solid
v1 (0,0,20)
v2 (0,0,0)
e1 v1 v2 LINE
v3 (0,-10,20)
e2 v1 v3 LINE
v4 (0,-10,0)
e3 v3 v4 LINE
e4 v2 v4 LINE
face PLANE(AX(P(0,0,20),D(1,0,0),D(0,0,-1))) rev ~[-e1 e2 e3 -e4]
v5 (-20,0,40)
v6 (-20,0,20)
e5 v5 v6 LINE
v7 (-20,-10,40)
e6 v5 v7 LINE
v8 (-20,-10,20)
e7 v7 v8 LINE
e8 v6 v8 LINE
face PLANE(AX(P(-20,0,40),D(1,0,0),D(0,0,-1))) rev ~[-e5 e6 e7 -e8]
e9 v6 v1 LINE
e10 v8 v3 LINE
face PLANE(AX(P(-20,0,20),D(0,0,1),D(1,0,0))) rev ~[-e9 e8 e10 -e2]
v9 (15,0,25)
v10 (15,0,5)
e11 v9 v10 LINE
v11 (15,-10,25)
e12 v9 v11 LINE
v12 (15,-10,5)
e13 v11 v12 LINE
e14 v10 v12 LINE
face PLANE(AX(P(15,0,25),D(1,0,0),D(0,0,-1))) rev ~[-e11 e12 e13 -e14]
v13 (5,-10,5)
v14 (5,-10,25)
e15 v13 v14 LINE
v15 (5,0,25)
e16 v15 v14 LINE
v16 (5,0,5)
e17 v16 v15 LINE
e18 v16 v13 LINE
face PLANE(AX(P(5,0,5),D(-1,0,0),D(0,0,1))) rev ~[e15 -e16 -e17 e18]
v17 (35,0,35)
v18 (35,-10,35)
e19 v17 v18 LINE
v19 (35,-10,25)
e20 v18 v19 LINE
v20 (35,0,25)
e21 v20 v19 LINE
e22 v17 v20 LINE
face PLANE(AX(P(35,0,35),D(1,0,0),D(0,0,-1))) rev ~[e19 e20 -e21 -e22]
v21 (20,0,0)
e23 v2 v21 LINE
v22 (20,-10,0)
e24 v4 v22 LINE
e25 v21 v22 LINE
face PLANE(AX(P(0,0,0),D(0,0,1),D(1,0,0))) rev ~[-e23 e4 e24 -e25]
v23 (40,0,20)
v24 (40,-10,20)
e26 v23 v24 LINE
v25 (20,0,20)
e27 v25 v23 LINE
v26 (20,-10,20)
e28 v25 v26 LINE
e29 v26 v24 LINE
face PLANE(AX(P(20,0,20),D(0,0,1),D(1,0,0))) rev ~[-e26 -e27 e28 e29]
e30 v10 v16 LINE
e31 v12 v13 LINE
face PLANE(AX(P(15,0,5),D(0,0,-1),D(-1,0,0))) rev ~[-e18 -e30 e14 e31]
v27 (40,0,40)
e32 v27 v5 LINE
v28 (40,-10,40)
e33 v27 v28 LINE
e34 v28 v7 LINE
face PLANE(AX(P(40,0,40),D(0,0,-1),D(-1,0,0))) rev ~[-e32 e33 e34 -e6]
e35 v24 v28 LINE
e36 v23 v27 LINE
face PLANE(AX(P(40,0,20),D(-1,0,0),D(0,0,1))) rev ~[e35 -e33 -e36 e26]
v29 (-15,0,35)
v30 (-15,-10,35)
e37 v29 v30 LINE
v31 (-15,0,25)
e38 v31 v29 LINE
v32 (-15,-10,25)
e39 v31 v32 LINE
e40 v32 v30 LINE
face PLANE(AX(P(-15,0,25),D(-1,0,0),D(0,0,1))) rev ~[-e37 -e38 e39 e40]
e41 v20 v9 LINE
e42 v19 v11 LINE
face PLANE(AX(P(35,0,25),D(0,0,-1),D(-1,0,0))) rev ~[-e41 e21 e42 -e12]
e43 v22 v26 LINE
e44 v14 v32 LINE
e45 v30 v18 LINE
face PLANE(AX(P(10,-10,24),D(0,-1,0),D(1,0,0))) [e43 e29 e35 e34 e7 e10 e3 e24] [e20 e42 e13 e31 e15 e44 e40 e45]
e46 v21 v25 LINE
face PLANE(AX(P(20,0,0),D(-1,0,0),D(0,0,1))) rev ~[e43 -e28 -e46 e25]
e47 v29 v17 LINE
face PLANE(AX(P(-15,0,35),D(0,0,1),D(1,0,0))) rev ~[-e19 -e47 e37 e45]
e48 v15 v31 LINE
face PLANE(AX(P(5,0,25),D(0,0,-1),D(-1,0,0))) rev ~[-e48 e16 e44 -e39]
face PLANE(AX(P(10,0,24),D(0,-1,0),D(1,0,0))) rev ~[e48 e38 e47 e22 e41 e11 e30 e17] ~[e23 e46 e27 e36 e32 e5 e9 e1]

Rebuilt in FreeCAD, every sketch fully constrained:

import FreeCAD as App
import Part
import Sketcher

V = App.Vector
Q = App.Units.Quantity

doc = App.newDocument("Part")
params = doc.addObject("Spreadsheet::Sheet", "Params")
for row, (alias, value) in enumerate([
    ("sketch1_width", "20 mm"),
    ("sketch1_width2", "50 mm"),
    ("pad1_length", "10 mm"),
], start=1):
    params.set(f"A{row}", alias)
    params.set(f"B{row}", "=" + value)
    params.setAlias(f"B{row}", alias)

body = doc.addObject("PartDesign::Body", "Body")

# Sketch on XZ plane
sketch1 = body.newObject("Sketcher::SketchObject", "Sketch")
sketch1.AttachmentSupport = (doc.getObject("XZ_Plane"), [""])
sketch1.MapMode = "FlatFace"
sketch1.addGeometry(Part.LineSegment(V(0, 20, 0), V(0, 0, 0)), False)
sketch1.addGeometry(Part.LineSegment(V(0, 0, 0), V(20, 0, 0)), False)
sketch1.addGeometry(Part.LineSegment(V(20, 0, 0), V(20, 20, 0)), False)
sketch1.addGeometry(Part.LineSegment(V(20, 20, 0), V(40, 20, 0)), False)
sketch1.addGeometry(Part.LineSegment(V(40, 20, 0), V(40, 40, 0)), False)
sketch1.addGeometry(Part.LineSegment(V(40, 40, 0), V(-20, 40, 0)), False)
sketch1.addGeometry(Part.LineSegment(V(-20, 40, 0), V(-20, 20, 0)), False)
sketch1.addGeometry(Part.LineSegment(V(-20, 20, 0), V(0, 20, 0)), False)
sketch1.addGeometry(Part.LineSegment(V(5, 5, 0), V(5, 25, 0)), False)
sketch1.addGeometry(Part.LineSegment(V(5, 25, 0), V(-15, 25, 0)), False)
sketch1.addGeometry(Part.LineSegment(V(-15, 25, 0), V(-15, 35, 0)), False)
sketch1.addGeometry(Part.LineSegment(V(-15, 35, 0), V(35, 35, 0)), False)
sketch1.addGeometry(Part.LineSegment(V(35, 35, 0), V(35, 25, 0)), False)
sketch1.addGeometry(Part.LineSegment(V(35, 25, 0), V(15, 25, 0)), False)
sketch1.addGeometry(Part.LineSegment(V(15, 25, 0), V(15, 5, 0)), False)
sketch1.addGeometry(Part.LineSegment(V(15, 5, 0), V(5, 5, 0)), False)
sketch1.addConstraint(Sketcher.Constraint("Coincident", 0, 2, 1, 1))
sketch1.addConstraint(Sketcher.Constraint("Coincident", 1, 2, 2, 1))
sketch1.addConstraint(Sketcher.Constraint("Coincident", 2, 2, 3, 1))
sketch1.addConstraint(Sketcher.Constraint("Coincident", 3, 2, 4, 1))
sketch1.addConstraint(Sketcher.Constraint("Coincident", 4, 2, 5, 1))
sketch1.addConstraint(Sketcher.Constraint("Coincident", 5, 2, 6, 1))
sketch1.addConstraint(Sketcher.Constraint("Coincident", 6, 2, 7, 1))
sketch1.addConstraint(Sketcher.Constraint("Coincident", 7, 2, 0, 1))
sketch1.addConstraint(Sketcher.Constraint("Coincident", 8, 2, 9, 1))
sketch1.addConstraint(Sketcher.Constraint("Coincident", 9, 2, 10, 1))
sketch1.addConstraint(Sketcher.Constraint("Coincident", 10, 2, 11, 1))
sketch1.addConstraint(Sketcher.Constraint("Coincident", 11, 2, 12, 1))
sketch1.addConstraint(Sketcher.Constraint("Coincident", 12, 2, 13, 1))
sketch1.addConstraint(Sketcher.Constraint("Coincident", 13, 2, 14, 1))
sketch1.addConstraint(Sketcher.Constraint("Coincident", 14, 2, 15, 1))
sketch1.addConstraint(Sketcher.Constraint("Coincident", 15, 2, 8, 1))
sketch1.addConstraint(Sketcher.Constraint("Vertical", 0))
sketch1.addConstraint(Sketcher.Constraint("Horizontal", 1))
sketch1.addConstraint(Sketcher.Constraint("Vertical", 2))
sketch1.addConstraint(Sketcher.Constraint("Horizontal", 3))
sketch1.addConstraint(Sketcher.Constraint("Vertical", 4))
sketch1.addConstraint(Sketcher.Constraint("Horizontal", 5))
sketch1.addConstraint(Sketcher.Constraint("Vertical", 6))
sketch1.addConstraint(Sketcher.Constraint("Horizontal", 7))
sketch1.addConstraint(Sketcher.Constraint("Vertical", 8))
sketch1.addConstraint(Sketcher.Constraint("Horizontal", 9))
sketch1.addConstraint(Sketcher.Constraint("Vertical", 10))
sketch1.addConstraint(Sketcher.Constraint("Horizontal", 11))
sketch1.addConstraint(Sketcher.Constraint("Vertical", 12))
sketch1.addConstraint(Sketcher.Constraint("Horizontal", 13))
sketch1.addConstraint(Sketcher.Constraint("Vertical", 14))
sketch1.addConstraint(Sketcher.Constraint("Horizontal", 15))
sketch1.addConstraint(Sketcher.Constraint("Coincident", 0, 2, -1, 1))
sketch1.addConstraint(Sketcher.Constraint("Symmetric", 2, 2, 6, 2, -2))
sketch1.addConstraint(Sketcher.Constraint("Symmetric", 9, 2, 13, 2, -2))
sketch1.addConstraint(Sketcher.Constraint("Equal", 1, 3))
sketch1.addConstraint(Sketcher.Constraint("Equal", 7, 9))
sketch1.addConstraint(Sketcher.Constraint("Equal", 9, 13))
sketch1.addConstraint(Sketcher.Constraint("Equal", 13, 0))
sketch1.addConstraint(Sketcher.Constraint("Equal", 2, 4))
sketch1.addConstraint(Sketcher.Constraint("Equal", 6, 8))
sketch1.addConstraint(Sketcher.Constraint("Equal", 15, 10))
sketch1.addConstraint(Sketcher.Constraint("DistanceX", 1, 1, 1, 2, Q("20 mm")))
sketch1.addConstraint(Sketcher.Constraint("DistanceX", 11, 1, 11, 2, Q("50 mm")))
sketch1.addConstraint(Sketcher.Constraint("DistanceY", -1, 1, 8, 2, Q("25 mm")))
sketch1.setExpression("Constraints[42]", "Params.sketch1_width")
sketch1.setExpression("Constraints[43]", "Params.sketch1_width2")
pad1 = body.newObject("PartDesign::Pad", "Pad")
pad1.Profile = sketch1
pad1.setExpression("Length", "Params.pad1_length")

doc.recompute()
